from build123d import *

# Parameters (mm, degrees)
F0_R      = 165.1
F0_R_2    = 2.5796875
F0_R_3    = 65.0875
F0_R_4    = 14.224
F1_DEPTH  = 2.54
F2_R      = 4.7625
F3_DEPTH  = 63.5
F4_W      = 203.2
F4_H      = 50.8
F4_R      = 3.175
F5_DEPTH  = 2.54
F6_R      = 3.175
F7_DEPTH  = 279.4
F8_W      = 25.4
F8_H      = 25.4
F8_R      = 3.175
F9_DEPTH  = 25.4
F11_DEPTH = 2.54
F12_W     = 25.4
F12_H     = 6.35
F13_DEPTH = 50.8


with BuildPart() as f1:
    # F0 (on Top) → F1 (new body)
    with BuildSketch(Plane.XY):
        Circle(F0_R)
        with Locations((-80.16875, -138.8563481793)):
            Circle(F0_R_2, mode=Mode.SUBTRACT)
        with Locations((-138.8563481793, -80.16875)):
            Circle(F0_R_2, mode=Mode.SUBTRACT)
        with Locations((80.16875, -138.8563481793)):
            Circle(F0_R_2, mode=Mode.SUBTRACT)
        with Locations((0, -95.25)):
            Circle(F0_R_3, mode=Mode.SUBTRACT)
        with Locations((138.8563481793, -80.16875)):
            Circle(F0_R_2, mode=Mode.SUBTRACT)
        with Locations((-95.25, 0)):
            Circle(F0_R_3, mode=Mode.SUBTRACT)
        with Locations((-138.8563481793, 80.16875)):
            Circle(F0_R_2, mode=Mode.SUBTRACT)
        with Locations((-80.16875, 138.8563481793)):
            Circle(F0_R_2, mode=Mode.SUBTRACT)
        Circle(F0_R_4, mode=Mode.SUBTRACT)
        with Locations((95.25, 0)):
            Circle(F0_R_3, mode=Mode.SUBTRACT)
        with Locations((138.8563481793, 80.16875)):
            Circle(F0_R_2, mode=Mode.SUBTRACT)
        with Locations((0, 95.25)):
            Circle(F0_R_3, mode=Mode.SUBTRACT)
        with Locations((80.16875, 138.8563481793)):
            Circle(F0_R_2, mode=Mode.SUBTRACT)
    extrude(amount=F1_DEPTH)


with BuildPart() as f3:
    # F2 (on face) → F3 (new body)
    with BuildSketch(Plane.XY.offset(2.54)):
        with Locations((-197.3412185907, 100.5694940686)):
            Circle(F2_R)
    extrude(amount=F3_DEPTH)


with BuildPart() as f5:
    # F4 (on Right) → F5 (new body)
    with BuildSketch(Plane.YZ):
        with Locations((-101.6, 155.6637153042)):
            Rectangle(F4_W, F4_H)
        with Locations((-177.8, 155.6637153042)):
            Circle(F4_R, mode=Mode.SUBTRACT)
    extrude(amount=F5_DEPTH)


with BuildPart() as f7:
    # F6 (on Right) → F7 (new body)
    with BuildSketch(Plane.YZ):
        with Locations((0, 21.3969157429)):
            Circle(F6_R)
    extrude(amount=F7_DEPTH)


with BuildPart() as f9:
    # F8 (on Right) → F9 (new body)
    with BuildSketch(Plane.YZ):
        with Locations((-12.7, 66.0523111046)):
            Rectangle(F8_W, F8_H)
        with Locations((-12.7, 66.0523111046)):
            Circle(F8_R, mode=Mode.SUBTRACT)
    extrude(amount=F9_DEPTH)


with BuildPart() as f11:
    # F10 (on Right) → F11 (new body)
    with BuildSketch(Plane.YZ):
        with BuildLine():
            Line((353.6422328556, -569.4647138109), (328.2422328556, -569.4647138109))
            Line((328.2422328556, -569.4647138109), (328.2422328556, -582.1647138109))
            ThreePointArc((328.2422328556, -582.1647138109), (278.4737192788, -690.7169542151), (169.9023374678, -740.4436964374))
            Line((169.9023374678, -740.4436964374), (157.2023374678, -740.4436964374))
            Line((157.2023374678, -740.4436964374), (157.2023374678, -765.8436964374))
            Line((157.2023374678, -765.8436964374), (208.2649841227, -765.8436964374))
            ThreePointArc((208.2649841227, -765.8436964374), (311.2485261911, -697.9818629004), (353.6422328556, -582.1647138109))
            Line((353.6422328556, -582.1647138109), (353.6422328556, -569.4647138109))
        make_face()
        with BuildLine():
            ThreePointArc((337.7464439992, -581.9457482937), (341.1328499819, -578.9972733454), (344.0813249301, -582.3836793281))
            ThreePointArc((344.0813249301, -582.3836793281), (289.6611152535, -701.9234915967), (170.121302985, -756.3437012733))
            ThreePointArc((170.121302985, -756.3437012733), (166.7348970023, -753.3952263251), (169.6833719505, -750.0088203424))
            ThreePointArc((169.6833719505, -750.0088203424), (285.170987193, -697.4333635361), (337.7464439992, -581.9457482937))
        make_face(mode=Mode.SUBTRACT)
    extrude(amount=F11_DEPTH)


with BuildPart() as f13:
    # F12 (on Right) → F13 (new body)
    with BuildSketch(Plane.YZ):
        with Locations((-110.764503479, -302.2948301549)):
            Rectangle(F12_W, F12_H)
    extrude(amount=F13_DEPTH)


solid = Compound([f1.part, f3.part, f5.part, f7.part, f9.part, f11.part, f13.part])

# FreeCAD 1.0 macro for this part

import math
import FreeCAD as App
import Part
import Sketcher

V = App.Vector
Q = App.Units.Quantity

doc = App.newDocument("Part")
body = doc.addObject("PartDesign::Body", "Body")

# Sketch on XY plane
sketch1 = body.newObject("Sketcher::SketchObject", "Sketch")
sketch1.AttachmentSupport = (doc.getObject("XY_Plane"), [""])
sketch1.MapMode = "FlatFace"
sketch1.addGeometry([
    Part.Circle(V(0, 0, 0), V(0, 0, 1), 165.1),  # 0
    Part.Circle(V(-80.16875, -138.856348, 0), V(0, 0, 1), 2.579687),  # 1
    Part.Circle(V(0, -95.25, 0), V(0, 0, 1), 65.0875),  # 2
    Part.Circle(V(-138.856348, -80.16875, 0), V(0, 0, 1), 2.579687),  # 3
    Part.Circle(V(80.16875, -138.856348, 0), V(0, 0, 1), 2.579687),  # 4
    Part.Circle(V(138.856348, -80.16875, 0), V(0, 0, 1), 2.579687),  # 5
    Part.Circle(V(-95.25, 0, 0), V(0, 0, 1), 65.0875),  # 6
    Part.Circle(V(0, 0, 0), V(0, 0, 1), 14.224),  # 7
    Part.Circle(V(-138.856348, 80.16875, 0), V(0, 0, 1), 2.579687),  # 8
    Part.Circle(V(-80.16875, 138.856348, 0), V(0, 0, 1), 2.579687),  # 9
    Part.Circle(V(0, 95.25, 0), V(0, 0, 1), 65.0875),  # 10
    Part.Circle(V(95.25, 0, 0), V(0, 0, 1), 65.0875),  # 11
    Part.Circle(V(80.16875, 138.856348, 0), V(0, 0, 1), 2.579687),  # 12
    Part.Circle(V(138.856348, 80.16875, 0), V(0, 0, 1), 2.579687),  # 13
], False)
sketch1.addConstraint([
    Sketcher.Constraint("Coincident", 0, 3, -1, 1),
    Sketcher.Constraint("Coincident", 7, 3, -1, 1),
    Sketcher.Constraint("Equal", 1, 3),
    Sketcher.Constraint("Equal", 3, 4),
    Sketcher.Constraint("Equal", 4, 5),
    Sketcher.Constraint("Equal", 2, 6),
    Sketcher.Constraint("Equal", 5, 8),
    Sketcher.Constraint("Equal", 8, 9),
    Sketcher.Constraint("Equal", 6, 10),
    Sketcher.Constraint("Equal", 10, 11),
    Sketcher.Constraint("Equal", 9, 12),
    Sketcher.Constraint("Equal", 12, 13),
    Sketcher.Constraint("Symmetric", 5, 3, 8, 3, -1, 1),
    Sketcher.Constraint("Symmetric", 4, 3, 9, 3, -1, 1),
    Sketcher.Constraint("Symmetric", 2, 3, 10, 3, -1, 1),
    Sketcher.Constraint("Symmetric", 6, 3, 11, 3, -1, 1),
    Sketcher.Constraint("Symmetric", 1, 3, 12, 3, -1, 1),
    Sketcher.Constraint("Symmetric", 3, 3, 13, 3, -1, 1),
    Sketcher.Constraint("Symmetric", 1, 3, 4, 3, -2),
    Sketcher.Constraint("Symmetric", 3, 3, 5, 3, -2),
    Sketcher.Constraint("PointOnObject", 2, 3, -2),
    Sketcher.Constraint("PointOnObject", 6, 3, -1),
    Sketcher.Constraint("Diameter", 0, Q("13 in")),
    Sketcher.Constraint("Diameter", 7, Q("1.12 in")),
    Sketcher.Constraint("Diameter", 1, Q("0.203125 in")),
    Sketcher.Constraint("Diameter", 2, Q("5.125 in")),
    Sketcher.Constraint("DistanceY", 2, 3, -1, 1, Q("3.75 in")),
    Sketcher.Constraint("DistanceX", 6, 3, -1, 1, Q("3.75 in")),
    Sketcher.Constraint("DistanceX", 1, 3, -1, 1, Q("3.15625 in")),
    Sketcher.Constraint("DistanceY", 3, 3, -1, 1, Q("3.15625 in")),
    Sketcher.Constraint("DistanceX", 3, 3, 1, 3, Q("58.687598 mm")),
    Sketcher.Constraint("DistanceY", 1, 3, 3, 3, Q("58.687598 mm")),
])
pad1 = body.newObject("PartDesign::Pad", "Pad")
pad1.Profile = sketch1
pad1.Length = Q("0.1 in")
body2 = doc.addObject("PartDesign::Body", "Body001")

# Sketch on XY plane
sketch2 = body2.newObject("Sketcher::SketchObject", "Sketch001")
sketch2.AttachmentSupport = (doc.getObject("XY_Plane001"), [""])
sketch2.MapMode = "FlatFace"
sketch2.AttachmentOffset = App.Placement(V(0, 0, 0.1 * 25.4), App.Rotation())
sketch2.addGeometry(Part.Circle(V(-197.341219, 100.569494, 0), V(0, 0, 1), 4.7625), False)
sketch2.addConstraint([
    Sketcher.Constraint("Diameter", 0, Q("0.375 in")),
    Sketcher.Constraint("DistanceX", 0, 3, -1, 1, Q("197.341219 mm")),
    Sketcher.Constraint("DistanceY", -1, 1, 0, 3, Q("100.569494 mm")),
])
pad2 = body2.newObject("PartDesign::Pad", "Pad001")
pad2.Profile = sketch2
pad2.Length = Q("2.5 in")
body3 = doc.addObject("PartDesign::Body", "Body002")

# Sketch on YZ plane
sketch3 = body3.newObject("Sketcher::SketchObject", "Sketch002")
sketch3.AttachmentSupport = (doc.getObject("YZ_Plane002"), [""])
sketch3.MapMode = "FlatFace"
sketch3.addGeometry([
    Part.LineSegment(V(-203.2, 181.063715, 0), V(-203.2, 130.263715, 0)),  # 0
    Part.LineSegment(V(-203.2, 130.263715, 0), V(0, 130.263715, 0)),  # 1
    Part.LineSegment(V(0, 130.263715, 0), V(0, 181.063715, 0)),  # 2
    Part.LineSegment(V(0, 181.063715, 0), V(-203.2, 181.063715, 0)),  # 3
    Part.Circle(V(-177.8, 155.663715, 0), V(0, 0, 1), 3.175),  # 4
], False)
sketch3.addConstraint([
    Sketcher.Constraint("Coincident", 0, 2, 1, 1),
    Sketcher.Constraint("Coincident", 1, 2, 2, 1),
    Sketcher.Constraint("Coincident", 2, 2, 3, 1),
    Sketcher.Constraint("Coincident", 3, 2, 0, 1),
    Sketcher.Constraint("Vertical", 0),
    Sketcher.Constraint("Horizontal", 1),
    Sketcher.Constraint("Vertical", 2),
    Sketcher.Constraint("Horizontal", 3),
    Sketcher.Constraint("PointOnObject", 1, 2, -2),
    Sketcher.Constraint("Diameter", 4, Q("0.25 in")),
    Sketcher.Constraint("DistanceX", 1, 1, 1, 2, Q("8 in")),
    Sketcher.Constraint("DistanceY", 0, 2, 0, 1, Q("2 in")),
    Sketcher.Constraint("DistanceX", 4, 3, -1, 1, Q("7 in")),
    Sketcher.Constraint("DistanceY", 0, 2, 4, 3, Q("1 in")),
    Sketcher.Constraint("DistanceY", -1, 1, 4, 3, Q("155.663715 mm")),
])
pad3 = body3.newObject("PartDesign::Pad", "Pad002")
pad3.Profile = sketch3
pad3.Length = Q("0.1 in")
body4 = doc.addObject("PartDesign::Body", "Body003")

# Sketch on YZ plane
sketch4 = body4.newObject("Sketcher::SketchObject", "Sketch003")
sketch4.AttachmentSupport = (doc.getObject("YZ_Plane003"), [""])
sketch4.MapMode = "FlatFace"
sketch4.addGeometry(Part.Circle(V(0, 21.396916, 0), V(0, 0, 1), 3.175), False)
sketch4.addConstraint([
    Sketcher.Constraint("PointOnObject", 0, 3, -2),
    Sketcher.Constraint("Diameter", 0, Q("0.25 in")),
    Sketcher.Constraint("DistanceY", -1, 1, 0, 3, Q("21.396916 mm")),
])
pad4 = body4.newObject("PartDesign::Pad", "Pad003")
pad4.Profile = sketch4
pad4.Length = Q("11 in")
body5 = doc.addObject("PartDesign::Body", "Body004")

# Sketch on YZ plane
sketch5 = body5.newObject("Sketcher::SketchObject", "Sketch004")
sketch5.AttachmentSupport = (doc.getObject("YZ_Plane004"), [""])
sketch5.MapMode = "FlatFace"
sketch5.addGeometry([
    Part.LineSegment(V(-25.4, 78.752311, 0), V(-25.4, 53.352311, 0)),  # 0
    Part.LineSegment(V(-25.4, 53.352311, 0), V(0, 53.352311, 0)),  # 1
    Part.LineSegment(V(0, 53.352311, 0), V(0, 78.752311, 0)),  # 2
    Part.LineSegment(V(0, 78.752311, 0), V(-25.4, 78.752311, 0)),  # 3
    Part.Circle(V(-12.7, 66.052311, 0), V(0, 0, 1), 3.175),  # 4
], False)
sketch5.addConstraint([
    Sketcher.Constraint("Coincident", 0, 2, 1, 1),
    Sketcher.Constraint("Coincident", 1, 2, 2, 1),
    Sketcher.Constraint("Coincident", 2, 2, 3, 1),
    Sketcher.Constraint("Coincident", 3, 2, 0, 1),
    Sketcher.Constraint("Vertical", 0),
    Sketcher.Constraint("Horizontal", 1),
    Sketcher.Constraint("Vertical", 2),
    Sketcher.Constraint("Horizontal", 3),
    Sketcher.Constraint("PointOnObject", 1, 2, -2),
    Sketcher.Constraint("Equal", 3, 0),
    Sketcher.Constraint("Diameter", 4, Q("0.25 in")),
    Sketcher.Constraint("DistanceX", 1, 1, 1, 2, Q("1 in")),
    Sketcher.Constraint("DistanceX", 4, 3, -1, 1, Q("0.5 in")),
    Sketcher.Constraint("DistanceY", 0, 2, 4, 3, Q("0.5 in")),
    Sketcher.Constraint("DistanceY", -1, 1, 4, 3, Q("66.052311 mm")),
])
pad5 = body5.newObject("PartDesign::Pad", "Pad004")
pad5.Profile = sketch5
pad5.Length = Q("1 in")
body6 = doc.addObject("PartDesign::Body", "Body005")

# Sketch on YZ plane
sketch6 = body6.newObject("Sketcher::SketchObject", "Sketch005")
sketch6.AttachmentSupport = (doc.getObject("YZ_Plane005"), [""])
sketch6.MapMode = "FlatFace"
sketch6.addGeometry([
    Part.LineSegment(V(353.642233, -569.464714, 0), V(328.242233, -569.464714, 0)),  # 0
    Part.LineSegment(V(328.242233, -569.464714, 0), V(328.242233, -582.164714, 0)),  # 1
    Part.ArcOfCircle(Part.Circle(V(157.263587, -569.460175, 0), V(0, 0, 1), 171.45), math.radians(-85.772502), math.radians(-4.249544)),  # 2
    Part.LineSegment(V(169.902337, -740.443696, 0), V(157.202337, -740.443696, 0)),  # 3
    Part.LineSegment(V(157.202337, -740.443696, 0), V(157.202337, -765.843696, 0)),  # 4
    Part.LineSegment(V(157.202337, -765.843696, 0), V(208.264984, -765.843696, 0)),  # 5
    Part.ArcOfCircle(Part.Circle(V(156.894679, -575.814714, 0), V(0, 0, 1), 196.85), math.radians(-74.872868), math.radians(-1.848572)),  # 6
    Part.LineSegment(V(353.642233, -582.164714, 0), V(353.642233, -569.464714, 0)),  # 7
    Part.ArcOfCircle(Part.Circle(V(157.202337, -569.464714, 0), V(0, 0, 1), 180.975), math.radians(-86.045428), math.radians(-3.954572)),  # 8
    Part.ArcOfCircle(Part.Circle(V(340.913884, -582.164714, 0), V(0, 0, 1), 3.175), math.radians(-3.954572), math.radians(176.045428)),  # 9
    Part.ArcOfCircle(Part.Circle(V(157.202337, -569.464714, 0), V(0, 0, 1), 187.325), math.radians(-86.045428), math.radians(-3.954572)),  # 10
    Part.ArcOfCircle(Part.Circle(V(169.902337, -753.176261, 0), V(0, 0, 1), 3.175), math.radians(93.954572), math.radians(273.954572)),  # 11
], False)
sketch6.addConstraint([
    Sketcher.Constraint("Coincident", 0, 2, 1, 1),
    Sketcher.Constraint("Coincident", 1, 2, 2, 2),
    Sketcher.Constraint("Coincident", 2, 1, 3, 1),
    Sketcher.Constraint("Coincident", 3, 2, 4, 1),
    Sketcher.Constraint("Coincident", 4, 2, 5, 1),
    Sketcher.Constraint("Coincident", 5, 2, 6, 1),
    Sketcher.Constraint("Coincident", 6, 2, 7, 1),
    Sketcher.Constraint("Coincident", 7, 2, 0, 1),
    Sketcher.Constraint("Tangent", 8, 2, 9, 2),
    Sketcher.Constraint("Tangent", 9, 1, 10, 2),
    Sketcher.Constraint("Tangent", 10, 1, 11, 2),
    Sketcher.Constraint("Tangent", 11, 1, 8, 1),
    Sketcher.Constraint("Horizontal", 0),
    Sketcher.Constraint("Vertical", 1),
    Sketcher.Constraint("Horizontal", 3),
    Sketcher.Constraint("Vertical", 4),
    Sketcher.Constraint("Horizontal", 5),
    Sketcher.Constraint("Vertical", 7),
    Sketcher.Constraint("Coincident", 10, 3, 8, 3),
    Sketcher.Constraint("Horizontal", 10, 3, 0, 2),
    Sketcher.Constraint("Horizontal", 9, 3, 1, 2),
    Sketcher.Constraint("Horizontal", 1, 2, 6, 2),
    Sketcher.Constraint("Vertical", 11, 3, 2, 1),
    Sketcher.Constraint("Vertical", 10, 3, 3, 2),
    Sketcher.Constraint("Equal", 3, 1),
    Sketcher.Constraint("Equal", 0, 4),
    Sketcher.Constraint("DistanceX", 0, 2, 0, 1, Q("1 in")),
    Sketcher.Constraint("Radius", 2, Q("6.75 in")),
    Sketcher.Constraint("Radius", 6, Q("7.75 in")),
    Sketcher.Constraint("DistanceX", 3, 2, 3, 1, Q("0.5 in")),
    Sketcher.Constraint("Radius", 8, Q("7.125 in")),
    Sketcher.Constraint("Radius", 9, Q("0.125 in")),
    Sketcher.Constraint("DistanceY", 6, 3, 8, 3, Q("0.25 in")),
    Sketcher.Constraint("DistanceY", 10, 1, -1, 1, Q("756.343701 mm")),
    Sketcher.Constraint("DistanceX", 5, 1, 5, 2, Q("51.062647 mm")),
    Sketcher.Constraint("DistanceX", -1, 1, 6, 3, Q("156.894679 mm")),
    Sketcher.Constraint("DistanceX", -1, 1, 11, 1, Q("169.683372 mm")),
])
pad6 = body6.newObject("PartDesign::Pad", "Pad005")
pad6.Profile = sketch6
pad6.Length = Q("0.1 in")
body7 = doc.addObject("PartDesign::Body", "Body006")

# Sketch on YZ plane
sketch7 = body7.newObject("Sketcher::SketchObject", "Sketch006")
sketch7.AttachmentSupport = (doc.getObject("YZ_Plane006"), [""])
sketch7.MapMode = "FlatFace"
sketch7.addGeometry([
    Part.LineSegment(V(-123.464503, -299.11983, 0), V(-123.464503, -305.46983, 0)),
    Part.LineSegment(V(-123.464503, -305.46983, 0), V(-98.064503, -305.46983, 0)),
    Part.LineSegment(V(-98.064503, -305.46983, 0), V(-98.064503, -299.11983, 0)),
    Part.LineSegment(V(-98.064503, -299.11983, 0), V(-123.464503, -299.11983, 0)),
], False)
sketch7.addConstraint([
    Sketcher.Constraint("Coincident", 0, 2, 1, 1),
    Sketcher.Constraint("Coincident", 1, 2, 2, 1),
    Sketcher.Constraint("Coincident", 2, 2, 3, 1),
    Sketcher.Constraint("Coincident", 3, 2, 0, 1),
    Sketcher.Constraint("Vertical", 0),
    Sketcher.Constraint("Horizontal", 1),
    Sketcher.Constraint("Vertical", 2),
    Sketcher.Constraint("Horizontal", 3),
    Sketcher.Constraint("DistanceX", 1, 1, 1, 2, Q("1 in")),
    Sketcher.Constraint("DistanceY", 0, 2, 0, 1, Q("0.25 in")),
    Sketcher.Constraint("DistanceY", 0, 2, -1, 1, Q("305.46983 mm")),
    Sketcher.Constraint("DistanceX", 0, 2, -1, 1, Q("123.464503 mm")),
])
pad7 = body7.newObject("PartDesign::Pad", "Pad006")
pad7.Profile = sketch7
pad7.Length = Q("2 in")

doc.recompute()
